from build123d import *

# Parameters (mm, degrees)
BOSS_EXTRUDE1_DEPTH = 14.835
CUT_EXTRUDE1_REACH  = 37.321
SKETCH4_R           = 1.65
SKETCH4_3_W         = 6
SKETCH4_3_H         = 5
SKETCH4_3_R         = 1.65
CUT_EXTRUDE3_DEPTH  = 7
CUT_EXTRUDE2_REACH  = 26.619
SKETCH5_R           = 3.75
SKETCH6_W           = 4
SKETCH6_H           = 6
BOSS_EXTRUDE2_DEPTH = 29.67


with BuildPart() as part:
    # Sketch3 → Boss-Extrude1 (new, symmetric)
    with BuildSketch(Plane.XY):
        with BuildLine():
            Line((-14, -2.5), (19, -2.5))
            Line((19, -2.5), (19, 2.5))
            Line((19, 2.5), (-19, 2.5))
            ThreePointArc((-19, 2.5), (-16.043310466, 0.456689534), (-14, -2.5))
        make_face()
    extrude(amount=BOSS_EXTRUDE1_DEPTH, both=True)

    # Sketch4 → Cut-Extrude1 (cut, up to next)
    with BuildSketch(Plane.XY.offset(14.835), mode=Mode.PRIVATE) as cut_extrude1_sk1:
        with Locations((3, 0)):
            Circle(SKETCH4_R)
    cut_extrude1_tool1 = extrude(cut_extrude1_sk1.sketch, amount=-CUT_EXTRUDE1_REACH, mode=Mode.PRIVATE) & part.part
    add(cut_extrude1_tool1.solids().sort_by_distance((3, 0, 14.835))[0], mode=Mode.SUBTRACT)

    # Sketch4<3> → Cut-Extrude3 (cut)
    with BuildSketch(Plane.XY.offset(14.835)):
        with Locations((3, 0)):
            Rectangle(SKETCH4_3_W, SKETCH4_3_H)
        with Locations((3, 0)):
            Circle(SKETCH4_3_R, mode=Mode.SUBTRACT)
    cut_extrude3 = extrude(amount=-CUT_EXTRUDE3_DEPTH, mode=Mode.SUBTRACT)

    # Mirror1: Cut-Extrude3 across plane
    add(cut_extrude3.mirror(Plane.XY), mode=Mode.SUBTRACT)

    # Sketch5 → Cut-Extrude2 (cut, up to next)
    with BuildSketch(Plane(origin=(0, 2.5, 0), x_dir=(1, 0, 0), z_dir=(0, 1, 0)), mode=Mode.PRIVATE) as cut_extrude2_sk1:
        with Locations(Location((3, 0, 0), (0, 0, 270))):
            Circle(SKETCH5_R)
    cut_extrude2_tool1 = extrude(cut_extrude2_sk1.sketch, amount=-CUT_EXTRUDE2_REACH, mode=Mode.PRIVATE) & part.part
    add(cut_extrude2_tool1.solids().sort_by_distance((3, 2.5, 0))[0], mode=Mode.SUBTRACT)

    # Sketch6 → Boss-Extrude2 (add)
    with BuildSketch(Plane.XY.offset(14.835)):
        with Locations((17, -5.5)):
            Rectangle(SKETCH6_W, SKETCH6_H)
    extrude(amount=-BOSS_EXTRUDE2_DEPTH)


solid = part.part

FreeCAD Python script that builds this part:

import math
import FreeCAD as App
import Part
import Sketcher

V = App.Vector
Q = App.Units.Quantity


def add_polygon(sketch, points):
    """Adds a closed chain of lines whose ends are joined by coincident constraints."""
    first, n = sketch.GeometryCount, len(points)
    for a, b in zip(points, points[1:] + points[:1]):
        sketch.addGeometry(Part.LineSegment(App.Vector(*a, 0), App.Vector(*b, 0)), False)
    for i in range(n):
        sketch.addConstraint(Sketcher.Constraint("Coincident", first + i, 2, first + (i + 1) % n, 1))

doc = App.newDocument("Part")
body = doc.addObject("PartDesign::Body", "Body")

# Sketch on XY plane
sketch1 = doc.addObject("Sketcher::SketchObject", "Sketch")
body.addObject(sketch1)
sketch1.AttachmentSupport = (doc.XY_Plane, [""])
sketch1.MapMode = "FlatFace"
sketch1.addGeometry([
    Part.LineSegment(V(-14, -2, 0), V(19, -2, 0)),
    Part.LineSegment(V(19, -2, 0), V(19, 2, 0)),
    Part.LineSegment(V(19, 2, 0), V(-19, 2, 0)),
    Part.ArcOfCircle(Part.Circle(V(-23, -7, 0), V(0, 0, 1), 10), math.radians(24), math.radians(66)),
], False)
sketch1.addConstraint([
    Sketcher.Constraint("Coincident", 0, 2, 1, 1),
    Sketcher.Constraint("Coincident", 1, 2, 2, 1),
    Sketcher.Constraint("Coincident", 2, 2, 3, 2),
    Sketcher.Constraint("Coincident", 3, 1, 0, 1),
    Sketcher.Constraint("Horizontal", 0),
    Sketcher.Constraint("Vertical", 1),
    Sketcher.Constraint("Horizontal", 2),
    Sketcher.Constraint("Symmetric", 0, 2, 2, 2, -1, 1),
    Sketcher.Constraint("Radius", 3, Q("10 mm")),
    Sketcher.Constraint("DistanceX", 0, 1, 0, 2, Q("33 mm")),
    Sketcher.Constraint("DistanceX", 2, 2, 2, 1, Q("38 mm")),
    Sketcher.Constraint("DistanceY", 1, 1, 1, 2, Q("5 mm")),
])
pad1 = doc.addObject("PartDesign::Pad", "Pad")
body.addObject(pad1)
pad1.Profile = sketch1
pad1.Length = 29.67
pad1.Midplane = True

# Sketch on XY plane
sketch2 = doc.addObject("Sketcher::SketchObject", "Sketch001")
body.addObject(sketch2)
sketch2.AttachmentSupport = (doc.XY_Plane, [""])
sketch2.MapMode = "FlatFace"
sketch2.AttachmentOffset = App.Placement(V(0, 0, 14.835), App.Rotation())
sketch2.addGeometry(Part.Circle(V(3, 0, 0), V(0, 0, 1), 1.6), False)
sketch2.addConstraint([
    Sketcher.Constraint("PointOnObject", 0, 3, -1),
    Sketcher.Constraint("Diameter", 0, Q("3.3 mm")),
    Sketcher.Constraint("DistanceX", -1, 1, 0, 3, Q("3 mm")),
])
pocket1 = doc.addObject("PartDesign::Pocket", "Pocket")
body.addObject(pocket1)
pocket1.Profile = sketch2
pocket1.Type = "UpToFirst"

# Sketch on XY plane
sketch3 = doc.addObject("Sketcher::SketchObject", "Sketch002")
body.addObject(sketch3)
sketch3.AttachmentSupport = (doc.XY_Plane, [""])
sketch3.MapMode = "FlatFace"
sketch3.AttachmentOffset = App.Placement(V(0, 0, 14.835), App.Rotation())
add_polygon(sketch3, [(0, 2.5), (0, -2.5), (6, -2.5), (6, 2.5)])  # lines 0-3
sketch3.addGeometry(Part.Circle(V(3, 0, 0), V(0, 0, 1), 1.6), False)  # 4
sketch3.addConstraint([
    Sketcher.Constraint("Vertical", 0),
    Sketcher.Constraint("Horizontal", 1),
    Sketcher.Constraint("Vertical", 2),
    Sketcher.Constraint("Horizontal", 3),
    Sketcher.Constraint("Symmetric", 0, 2, 3, 2, -1, 1),
    Sketcher.Constraint("PointOnObject", 4, 3, -1),
    Sketcher.Constraint("Diameter", 4, Q("3.3 mm")),
    Sketcher.Constraint("DistanceX", 1, 1, 1, 2, Q("6 mm")),
    Sketcher.Constraint("DistanceY", 0, 2, 0, 1, Q("5 mm")),
    Sketcher.Constraint("DistanceX", -1, 1, 4, 3, Q("3 mm")),
])
pocket2 = doc.addObject("PartDesign::Pocket", "Pocket001")
body.addObject(pocket2)
pocket2.Profile = sketch3
pocket2.Length = 7
doc.recompute()

mirrored = doc.addObject("PartDesign::Mirrored", "Mirrored")
body.addObject(mirrored)
mirrored.Originals = [pocket2]
mirrored.MirrorPlane = (doc.XY_Plane, [""])
body.Tip = mirrored

# Sketch on XZ plane
sketch4 = doc.addObject("Sketcher::SketchObject", "Sketch003")
body.addObject(sketch4)
sketch4.AttachmentSupport = (doc.XZ_Plane, [""])
sketch4.MapMode = "FlatFace"
sketch4.AttachmentOffset = App.Placement(V(0, 0, -2.5), App.Rotation())
sketch4.addGeometry(Part.Circle(V(3, 0, 0), V(0, 0, 1), 3.8), False)
sketch4.addConstraint([
    Sketcher.Constraint("PointOnObject", 0, 3, -1),
    Sketcher.Constraint("Diameter", 0, Q("7.5 mm")),
    Sketcher.Constraint("DistanceX", -1, 1, 0, 3, Q("3 mm")),
])
pocket3 = doc.addObject("PartDesign::Pocket", "Pocket002")
body.addObject(pocket3)
pocket3.Profile = sketch4
pocket3.Length = 5
pocket3.Reversed = True

# Sketch on XY plane
sketch5 = doc.addObject("Sketcher::SketchObject", "Sketch004")
body.addObject(sketch5)
sketch5.AttachmentSupport = (doc.XY_Plane, [""])
sketch5.MapMode = "FlatFace"
sketch5.AttachmentOffset = App.Placement(V(0, 0, 14.835), App.Rotation())
add_polygon(sketch5, [(15, -2.5), (15, -8.5), (19, -8.5), (19, -2.5)])  # lines 0-3
sketch5.addConstraint([
    Sketcher.Constraint("Vertical", 0),
    Sketcher.Constraint("Horizontal", 1),
    Sketcher.Constraint("Vertical", 2),
    Sketcher.Constraint("Horizontal", 3),
    Sketcher.Constraint("DistanceX", 1, 1, 1, 2, Q("4 mm")),
    Sketcher.Constraint("DistanceY", 0, 2, 0, 1, Q("6 mm")),
    Sketcher.Constraint("DistanceX", -1, 1, 0, 2, Q("15 mm")),
    Sketcher.Constraint("DistanceY", 0, 2, -1, 1, Q("8.5 mm")),
])
pad2 = doc.addObject("PartDesign::Pad", "Pad001")
body.addObject(pad2)
pad2.Profile = sketch5
pad2.Length = 29.67
pad2.Reversed = True

doc.recompute()
